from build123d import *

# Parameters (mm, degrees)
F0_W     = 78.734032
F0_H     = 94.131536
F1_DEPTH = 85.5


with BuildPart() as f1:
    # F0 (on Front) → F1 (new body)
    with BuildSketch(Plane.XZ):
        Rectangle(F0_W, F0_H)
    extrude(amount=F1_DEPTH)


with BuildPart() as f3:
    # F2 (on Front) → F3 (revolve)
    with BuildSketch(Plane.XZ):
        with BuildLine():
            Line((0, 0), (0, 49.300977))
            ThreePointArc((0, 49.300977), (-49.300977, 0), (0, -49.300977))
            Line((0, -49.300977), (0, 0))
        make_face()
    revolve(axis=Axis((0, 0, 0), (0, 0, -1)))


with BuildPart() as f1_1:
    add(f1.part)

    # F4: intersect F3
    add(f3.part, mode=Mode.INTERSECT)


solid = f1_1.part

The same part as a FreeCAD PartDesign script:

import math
import FreeCAD as App
import Part
import Sketcher

V = App.Vector

doc = App.newDocument("Part")
body = doc.addObject("PartDesign::Body", "Body")

sketch1 = body.newObject("Sketcher::SketchObject", "Sketch")
sketch1.AttachmentSupport = (doc.getObject("XZ_Plane"), [""])
sketch1.MapMode = "FlatFace"
sketch1.addGeometry([
    Part.LineSegment(V(-39.367016, 47.065768, 0), V(-39.367016, -47.065768, 0)),
    Part.LineSegment(V(-39.367016, -47.065768, 0), V(39.367016, -47.065768, 0)),
    Part.LineSegment(V(39.367016, -47.065768, 0), V(39.367016, 47.065768, 0)),
    Part.LineSegment(V(39.367016, 47.065768, 0), V(-39.367016, 47.065768, 0)),
], False)
sketch1.addConstraint([
    Sketcher.Constraint("Coincident", 0, 2, 1, 1),
    Sketcher.Constraint("Coincident", 1, 2, 2, 1),
    Sketcher.Constraint("Coincident", 2, 2, 3, 1),
    Sketcher.Constraint("Coincident", 3, 2, 0, 1),
    Sketcher.Constraint("Vertical", 0),
    Sketcher.Constraint("Horizontal", 1),
    Sketcher.Constraint("Vertical", 2),
    Sketcher.Constraint("Horizontal", 3),
    Sketcher.Constraint("Symmetric", 0, 2, 2, 2, -1, 1),
    Sketcher.Constraint("DistanceX", 1, 1, 1, 2, 78.734032),
    Sketcher.Constraint("DistanceY", 0, 2, 0, 1, 94.131536),
])
pad1 = body.newObject("PartDesign::Pad", "Pad")
pad1.Profile = sketch1
pad1.Length = 85.5
body2 = doc.addObject("PartDesign::Body", "Body001")

sketch2 = body2.newObject("Sketcher::SketchObject", "Sketch001")
sketch2.AttachmentSupport = (doc.getObject("XZ_Plane001"), [""])
sketch2.MapMode = "FlatFace"
sketch2.addGeometry([
    Part.ArcOfCircle(Part.Circle(V(0, 0, 0), V(0, 0, 1), 49.300977), math.radians(90), math.radians(270)),
    Part.LineSegment(V(0, -49.300977, 0), V(0, 49.300977, 0)),
], False)
sketch2.addConstraint([
    Sketcher.Constraint("Coincident", 0, 1, 1, 2),
    Sketcher.Constraint("Coincident", 1, 1, 0, 2),
    Sketcher.Constraint("Vertical", 1),
    Sketcher.Constraint("Coincident", 0, 3, -1, 1),
    Sketcher.Constraint("PointOnObject", 0, 1, -2),
    Sketcher.Constraint("Radius", 0, 49.300977),
])
revolution = body2.newObject("PartDesign::Revolution", "Revolution")
revolution.Profile = sketch2
revolution.ReferenceAxis = (sketch2, ["V_Axis"])
revolution.Angle = 360
doc.recompute()

boolean = body.newObject("PartDesign::Boolean", "Boolean")
boolean.Type = "Common"
boolean.addObjects([body2])

doc.recompute()
